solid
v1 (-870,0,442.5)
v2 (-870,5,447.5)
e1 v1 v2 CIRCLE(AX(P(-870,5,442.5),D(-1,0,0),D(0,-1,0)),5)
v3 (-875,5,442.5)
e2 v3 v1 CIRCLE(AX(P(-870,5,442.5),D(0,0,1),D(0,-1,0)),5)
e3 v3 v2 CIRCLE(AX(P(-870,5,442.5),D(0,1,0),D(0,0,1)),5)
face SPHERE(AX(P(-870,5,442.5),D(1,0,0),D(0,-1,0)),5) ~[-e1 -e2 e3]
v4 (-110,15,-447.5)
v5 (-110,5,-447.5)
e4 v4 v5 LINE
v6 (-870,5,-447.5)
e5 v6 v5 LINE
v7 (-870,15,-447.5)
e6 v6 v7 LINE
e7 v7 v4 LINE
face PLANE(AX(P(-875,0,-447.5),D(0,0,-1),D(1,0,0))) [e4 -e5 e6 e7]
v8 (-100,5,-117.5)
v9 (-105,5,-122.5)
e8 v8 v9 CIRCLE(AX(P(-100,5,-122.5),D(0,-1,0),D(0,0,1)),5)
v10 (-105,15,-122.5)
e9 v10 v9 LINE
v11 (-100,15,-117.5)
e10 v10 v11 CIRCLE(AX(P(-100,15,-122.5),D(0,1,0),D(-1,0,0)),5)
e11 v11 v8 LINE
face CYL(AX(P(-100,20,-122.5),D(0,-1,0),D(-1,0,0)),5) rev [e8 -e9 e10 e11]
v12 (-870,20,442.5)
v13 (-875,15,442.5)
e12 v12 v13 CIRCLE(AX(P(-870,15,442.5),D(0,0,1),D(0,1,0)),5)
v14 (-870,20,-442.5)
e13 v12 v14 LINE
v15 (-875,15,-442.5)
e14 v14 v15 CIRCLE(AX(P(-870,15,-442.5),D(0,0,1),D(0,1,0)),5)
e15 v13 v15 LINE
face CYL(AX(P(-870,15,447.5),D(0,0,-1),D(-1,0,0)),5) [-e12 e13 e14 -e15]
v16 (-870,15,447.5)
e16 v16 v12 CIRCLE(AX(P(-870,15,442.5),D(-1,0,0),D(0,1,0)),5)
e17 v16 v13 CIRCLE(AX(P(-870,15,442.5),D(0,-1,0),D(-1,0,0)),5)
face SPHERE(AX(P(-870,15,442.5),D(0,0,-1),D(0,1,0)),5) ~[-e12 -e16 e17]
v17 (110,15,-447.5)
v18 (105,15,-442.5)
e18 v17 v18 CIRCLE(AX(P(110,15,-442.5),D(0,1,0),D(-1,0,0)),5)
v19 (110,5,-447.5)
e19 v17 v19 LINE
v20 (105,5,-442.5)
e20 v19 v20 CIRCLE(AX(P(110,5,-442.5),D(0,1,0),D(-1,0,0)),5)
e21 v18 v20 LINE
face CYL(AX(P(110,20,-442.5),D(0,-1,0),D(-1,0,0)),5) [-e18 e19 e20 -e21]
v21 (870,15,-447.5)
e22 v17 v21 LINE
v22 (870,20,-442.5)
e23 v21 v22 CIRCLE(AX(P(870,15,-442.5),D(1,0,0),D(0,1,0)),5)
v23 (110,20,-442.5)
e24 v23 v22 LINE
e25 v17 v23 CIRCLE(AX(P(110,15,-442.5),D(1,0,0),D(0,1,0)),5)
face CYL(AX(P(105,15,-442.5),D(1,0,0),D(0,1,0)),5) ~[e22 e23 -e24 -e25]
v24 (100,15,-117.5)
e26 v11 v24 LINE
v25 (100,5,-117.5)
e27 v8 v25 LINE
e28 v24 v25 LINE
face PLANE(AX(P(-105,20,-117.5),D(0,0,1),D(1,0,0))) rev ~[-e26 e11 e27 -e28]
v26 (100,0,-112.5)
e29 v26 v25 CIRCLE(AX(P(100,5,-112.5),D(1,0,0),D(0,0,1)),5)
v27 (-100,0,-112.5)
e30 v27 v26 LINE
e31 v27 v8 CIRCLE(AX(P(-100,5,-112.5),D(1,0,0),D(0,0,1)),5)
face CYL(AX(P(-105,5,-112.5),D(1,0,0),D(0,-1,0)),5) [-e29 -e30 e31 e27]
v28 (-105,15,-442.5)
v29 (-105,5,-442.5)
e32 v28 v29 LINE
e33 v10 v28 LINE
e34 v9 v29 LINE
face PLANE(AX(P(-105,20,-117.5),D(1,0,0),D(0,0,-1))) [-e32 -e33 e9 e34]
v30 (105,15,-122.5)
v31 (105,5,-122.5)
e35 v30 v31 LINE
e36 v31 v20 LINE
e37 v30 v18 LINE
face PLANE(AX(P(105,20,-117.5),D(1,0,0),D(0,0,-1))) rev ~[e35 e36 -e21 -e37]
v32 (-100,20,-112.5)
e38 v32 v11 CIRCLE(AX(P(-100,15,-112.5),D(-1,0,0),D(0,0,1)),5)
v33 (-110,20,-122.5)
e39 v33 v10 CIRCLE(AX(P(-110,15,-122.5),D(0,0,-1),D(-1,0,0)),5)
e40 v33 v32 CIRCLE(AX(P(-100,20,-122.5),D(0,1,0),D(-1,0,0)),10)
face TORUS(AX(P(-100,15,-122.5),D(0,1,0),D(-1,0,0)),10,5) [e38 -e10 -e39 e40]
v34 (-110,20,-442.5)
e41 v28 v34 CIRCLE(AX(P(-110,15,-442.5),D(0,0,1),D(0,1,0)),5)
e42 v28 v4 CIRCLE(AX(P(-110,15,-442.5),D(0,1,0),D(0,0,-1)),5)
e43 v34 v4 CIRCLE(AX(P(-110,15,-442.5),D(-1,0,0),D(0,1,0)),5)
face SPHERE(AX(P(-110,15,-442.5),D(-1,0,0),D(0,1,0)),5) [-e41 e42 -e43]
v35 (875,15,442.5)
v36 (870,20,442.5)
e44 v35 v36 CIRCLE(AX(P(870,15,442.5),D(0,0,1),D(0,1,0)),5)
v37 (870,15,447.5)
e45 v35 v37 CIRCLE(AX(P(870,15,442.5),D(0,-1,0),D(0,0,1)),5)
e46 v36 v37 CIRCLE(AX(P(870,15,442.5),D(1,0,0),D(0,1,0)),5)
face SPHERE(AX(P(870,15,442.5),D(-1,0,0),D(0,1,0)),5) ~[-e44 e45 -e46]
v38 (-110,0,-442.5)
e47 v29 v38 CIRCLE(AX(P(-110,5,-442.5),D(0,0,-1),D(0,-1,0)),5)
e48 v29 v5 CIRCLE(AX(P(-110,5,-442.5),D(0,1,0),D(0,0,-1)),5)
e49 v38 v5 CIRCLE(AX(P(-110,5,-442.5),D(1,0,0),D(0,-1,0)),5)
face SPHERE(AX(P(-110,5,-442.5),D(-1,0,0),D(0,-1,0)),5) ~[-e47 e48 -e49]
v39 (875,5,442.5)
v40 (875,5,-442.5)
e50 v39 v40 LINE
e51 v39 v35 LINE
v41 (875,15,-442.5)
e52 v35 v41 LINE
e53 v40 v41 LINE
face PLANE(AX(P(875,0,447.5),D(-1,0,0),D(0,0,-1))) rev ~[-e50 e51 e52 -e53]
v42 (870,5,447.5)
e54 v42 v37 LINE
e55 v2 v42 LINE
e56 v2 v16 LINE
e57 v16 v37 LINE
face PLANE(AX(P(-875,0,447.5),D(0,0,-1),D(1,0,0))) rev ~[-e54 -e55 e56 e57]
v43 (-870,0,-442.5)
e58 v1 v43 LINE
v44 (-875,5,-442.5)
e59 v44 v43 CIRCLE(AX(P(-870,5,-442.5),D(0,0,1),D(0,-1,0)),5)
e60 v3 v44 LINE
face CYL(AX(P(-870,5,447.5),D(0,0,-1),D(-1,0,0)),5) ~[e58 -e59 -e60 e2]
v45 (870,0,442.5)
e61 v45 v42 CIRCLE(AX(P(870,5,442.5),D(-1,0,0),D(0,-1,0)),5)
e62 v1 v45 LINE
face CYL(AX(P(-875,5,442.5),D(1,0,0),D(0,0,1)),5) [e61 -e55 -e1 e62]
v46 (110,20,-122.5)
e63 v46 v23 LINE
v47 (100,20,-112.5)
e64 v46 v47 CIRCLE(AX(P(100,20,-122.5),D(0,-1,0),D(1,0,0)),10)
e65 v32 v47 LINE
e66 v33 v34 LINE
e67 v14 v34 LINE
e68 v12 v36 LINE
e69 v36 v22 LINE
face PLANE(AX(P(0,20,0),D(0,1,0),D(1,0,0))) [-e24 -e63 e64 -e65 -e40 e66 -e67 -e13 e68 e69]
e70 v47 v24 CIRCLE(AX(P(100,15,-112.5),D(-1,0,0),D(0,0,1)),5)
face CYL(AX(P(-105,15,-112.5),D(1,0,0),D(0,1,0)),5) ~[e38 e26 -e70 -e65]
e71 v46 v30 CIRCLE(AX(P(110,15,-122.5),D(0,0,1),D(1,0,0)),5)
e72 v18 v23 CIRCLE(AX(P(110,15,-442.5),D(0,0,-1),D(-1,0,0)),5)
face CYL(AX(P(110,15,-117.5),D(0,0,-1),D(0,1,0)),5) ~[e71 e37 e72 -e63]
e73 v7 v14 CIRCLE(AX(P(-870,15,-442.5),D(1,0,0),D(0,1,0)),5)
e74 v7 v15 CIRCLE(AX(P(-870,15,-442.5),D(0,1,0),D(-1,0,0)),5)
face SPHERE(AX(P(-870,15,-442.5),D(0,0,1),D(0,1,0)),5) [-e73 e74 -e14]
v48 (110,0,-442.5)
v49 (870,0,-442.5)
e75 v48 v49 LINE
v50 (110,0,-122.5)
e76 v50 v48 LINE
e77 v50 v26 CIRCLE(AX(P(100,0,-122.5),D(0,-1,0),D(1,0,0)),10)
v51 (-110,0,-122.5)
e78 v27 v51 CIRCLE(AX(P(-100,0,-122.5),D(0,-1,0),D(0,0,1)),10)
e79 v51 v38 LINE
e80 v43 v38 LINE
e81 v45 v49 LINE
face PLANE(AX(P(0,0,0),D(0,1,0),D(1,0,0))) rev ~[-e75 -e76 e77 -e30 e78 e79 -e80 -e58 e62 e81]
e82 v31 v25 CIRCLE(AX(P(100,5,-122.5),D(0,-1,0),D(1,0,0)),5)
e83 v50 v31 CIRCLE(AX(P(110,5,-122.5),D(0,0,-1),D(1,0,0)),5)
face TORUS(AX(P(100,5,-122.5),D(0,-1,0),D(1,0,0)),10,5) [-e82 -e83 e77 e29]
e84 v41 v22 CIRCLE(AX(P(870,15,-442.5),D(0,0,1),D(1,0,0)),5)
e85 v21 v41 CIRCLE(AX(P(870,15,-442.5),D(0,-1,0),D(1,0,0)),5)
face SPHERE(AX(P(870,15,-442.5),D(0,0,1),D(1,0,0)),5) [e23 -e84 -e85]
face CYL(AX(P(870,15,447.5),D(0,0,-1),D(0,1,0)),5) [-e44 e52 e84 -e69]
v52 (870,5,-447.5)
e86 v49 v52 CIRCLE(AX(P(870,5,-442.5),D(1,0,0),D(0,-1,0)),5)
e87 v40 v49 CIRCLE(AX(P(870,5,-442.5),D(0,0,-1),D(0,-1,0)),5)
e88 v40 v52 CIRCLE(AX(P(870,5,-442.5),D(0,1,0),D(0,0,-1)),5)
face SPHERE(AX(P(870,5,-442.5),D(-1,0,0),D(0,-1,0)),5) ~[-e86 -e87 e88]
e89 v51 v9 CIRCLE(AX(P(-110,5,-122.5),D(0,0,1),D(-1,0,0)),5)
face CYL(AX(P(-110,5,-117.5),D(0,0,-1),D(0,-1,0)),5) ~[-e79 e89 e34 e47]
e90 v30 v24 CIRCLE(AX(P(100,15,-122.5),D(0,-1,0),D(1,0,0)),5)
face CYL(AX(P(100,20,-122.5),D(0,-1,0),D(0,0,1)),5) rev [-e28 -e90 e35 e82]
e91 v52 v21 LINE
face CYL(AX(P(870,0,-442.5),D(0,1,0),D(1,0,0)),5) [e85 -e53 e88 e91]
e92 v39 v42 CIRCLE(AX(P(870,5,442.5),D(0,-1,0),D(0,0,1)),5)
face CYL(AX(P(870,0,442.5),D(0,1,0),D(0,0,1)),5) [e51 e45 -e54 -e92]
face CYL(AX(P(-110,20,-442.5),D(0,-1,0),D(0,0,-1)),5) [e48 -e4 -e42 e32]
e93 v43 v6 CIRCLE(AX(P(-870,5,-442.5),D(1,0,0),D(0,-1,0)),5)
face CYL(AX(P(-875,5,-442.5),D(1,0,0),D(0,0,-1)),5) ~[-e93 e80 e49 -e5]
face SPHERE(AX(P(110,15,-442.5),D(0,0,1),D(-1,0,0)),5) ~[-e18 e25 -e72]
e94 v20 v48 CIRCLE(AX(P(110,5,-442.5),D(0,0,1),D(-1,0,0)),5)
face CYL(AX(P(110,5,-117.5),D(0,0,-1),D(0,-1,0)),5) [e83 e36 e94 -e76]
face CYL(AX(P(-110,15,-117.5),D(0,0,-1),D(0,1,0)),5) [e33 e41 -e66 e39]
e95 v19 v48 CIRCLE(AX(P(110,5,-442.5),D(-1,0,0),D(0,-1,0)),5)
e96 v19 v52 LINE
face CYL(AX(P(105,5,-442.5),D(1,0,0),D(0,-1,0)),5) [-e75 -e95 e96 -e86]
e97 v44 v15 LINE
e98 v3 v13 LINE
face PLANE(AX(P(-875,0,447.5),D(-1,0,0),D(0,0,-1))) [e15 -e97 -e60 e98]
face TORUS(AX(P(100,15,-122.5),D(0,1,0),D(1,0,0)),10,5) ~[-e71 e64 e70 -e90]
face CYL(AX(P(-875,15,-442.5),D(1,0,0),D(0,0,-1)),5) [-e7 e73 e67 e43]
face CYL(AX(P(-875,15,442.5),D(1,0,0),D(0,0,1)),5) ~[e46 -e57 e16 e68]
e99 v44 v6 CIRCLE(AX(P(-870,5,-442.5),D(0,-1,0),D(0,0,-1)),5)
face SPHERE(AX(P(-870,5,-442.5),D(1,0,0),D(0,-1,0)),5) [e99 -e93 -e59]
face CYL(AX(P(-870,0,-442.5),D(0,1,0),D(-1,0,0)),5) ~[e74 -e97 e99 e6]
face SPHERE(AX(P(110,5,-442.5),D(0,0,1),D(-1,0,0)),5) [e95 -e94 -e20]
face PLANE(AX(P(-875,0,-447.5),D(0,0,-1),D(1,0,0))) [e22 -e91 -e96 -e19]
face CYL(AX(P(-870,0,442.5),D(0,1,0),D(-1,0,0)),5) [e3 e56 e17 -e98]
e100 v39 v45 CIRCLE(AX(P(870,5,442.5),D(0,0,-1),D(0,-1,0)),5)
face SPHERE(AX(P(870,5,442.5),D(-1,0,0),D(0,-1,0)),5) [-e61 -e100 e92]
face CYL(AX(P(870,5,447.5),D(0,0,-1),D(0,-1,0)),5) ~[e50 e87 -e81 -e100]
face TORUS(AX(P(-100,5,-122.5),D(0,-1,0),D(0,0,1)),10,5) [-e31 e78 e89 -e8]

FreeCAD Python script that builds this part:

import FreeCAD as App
import Part
import Sketcher
from FreeCAD import Vector
Q = App.Units.Quantity


def add_polygon(sketch, points):
    """Adds a closed chain of lines whose ends are joined by coincident constraints."""
    first, n = sketch.GeometryCount, len(points)
    for a, b in zip(points, points[1:] + points[:1]):
        sketch.addGeometry(Part.LineSegment(App.Vector(*a, 0), App.Vector(*b, 0)), False)
    for i in range(n):
        sketch.addConstraint(Sketcher.Constraint("Coincident", first + i, 2, first + (i + 1) % n, 1))

doc = App.newDocument("Part")
body = doc.addObject("PartDesign::Body", "Body")

sketch1 = body.newObject("Sketcher::SketchObject", "Sketch")
sketch1.AttachmentSupport = (doc.getObject("XZ_Plane"), [""])
sketch1.MapMode = "FlatFace"
add_polygon(sketch1, [(-875, -448), (-875, 448), (875, 448), (875, -448)])
sketch1.addConstraint(Sketcher.Constraint("Vertical", 0))
sketch1.addConstraint(Sketcher.Constraint("Horizontal", 1))
sketch1.addConstraint(Sketcher.Constraint("Vertical", 2))
sketch1.addConstraint(Sketcher.Constraint("Horizontal", 3))
sketch1.addConstraint(Sketcher.Constraint("Symmetric", 0, 2, 2, 2, -1, 1))
sketch1.addConstraint(Sketcher.Constraint("DistanceX", 1, 1, 1, 2, Q("1750 mm")))
sketch1.addConstraint(Sketcher.Constraint("DistanceY", 0, 1, 0, 2, Q("895 mm")))
pad1 = body.newObject("PartDesign::Pad", "Pad")
pad1.Profile = sketch1
pad1.Length = 20
pad1.Reversed = True

sketch2 = body.newObject("Sketcher::SketchObject", "Sketch001")
sketch2.AttachmentSupport = (doc.getObject("XZ_Plane"), [""])
sketch2.MapMode = "FlatFace"
sketch2.AttachmentOffset = App.Placement(Vector(0, 0, -20), App.Rotation())
add_polygon(sketch2, [(-105, -778), (-105, -118), (105, -118), (105, -778)])
sketch2.addConstraint(Sketcher.Constraint("Vertical", 0))
sketch2.addConstraint(Sketcher.Constraint("Horizontal", 1))
sketch2.addConstraint(Sketcher.Constraint("Vertical", 2))
sketch2.addConstraint(Sketcher.Constraint("Horizontal", 3))
sketch2.addConstraint(Sketcher.Constraint("DistanceX", 1, 1, 1, 2, Q("210 mm")))
sketch2.addConstraint(Sketcher.Constraint("DistanceY", 0, 1, 0, 2, Q("660 mm")))
sketch2.addConstraint(Sketcher.Constraint("DistanceX", 0, 2, -1, 1, Q("105 mm")))
sketch2.addConstraint(Sketcher.Constraint("DistanceY", 0, 2, -1, 1, Q("117.5 mm")))
pocket1 = body.newObject("PartDesign::Pocket", "Pocket")
pocket1.Profile = sketch2
pocket1.Length = 20
pocket1.Reversed = True
doc.recompute()

fillet = body.newObject("PartDesign::Fillet", "Fillet")
fillet.Base = (pocket1, ["Edge1"])
fillet.UseAllEdges = True
fillet.Radius = 5

doc.recompute()
